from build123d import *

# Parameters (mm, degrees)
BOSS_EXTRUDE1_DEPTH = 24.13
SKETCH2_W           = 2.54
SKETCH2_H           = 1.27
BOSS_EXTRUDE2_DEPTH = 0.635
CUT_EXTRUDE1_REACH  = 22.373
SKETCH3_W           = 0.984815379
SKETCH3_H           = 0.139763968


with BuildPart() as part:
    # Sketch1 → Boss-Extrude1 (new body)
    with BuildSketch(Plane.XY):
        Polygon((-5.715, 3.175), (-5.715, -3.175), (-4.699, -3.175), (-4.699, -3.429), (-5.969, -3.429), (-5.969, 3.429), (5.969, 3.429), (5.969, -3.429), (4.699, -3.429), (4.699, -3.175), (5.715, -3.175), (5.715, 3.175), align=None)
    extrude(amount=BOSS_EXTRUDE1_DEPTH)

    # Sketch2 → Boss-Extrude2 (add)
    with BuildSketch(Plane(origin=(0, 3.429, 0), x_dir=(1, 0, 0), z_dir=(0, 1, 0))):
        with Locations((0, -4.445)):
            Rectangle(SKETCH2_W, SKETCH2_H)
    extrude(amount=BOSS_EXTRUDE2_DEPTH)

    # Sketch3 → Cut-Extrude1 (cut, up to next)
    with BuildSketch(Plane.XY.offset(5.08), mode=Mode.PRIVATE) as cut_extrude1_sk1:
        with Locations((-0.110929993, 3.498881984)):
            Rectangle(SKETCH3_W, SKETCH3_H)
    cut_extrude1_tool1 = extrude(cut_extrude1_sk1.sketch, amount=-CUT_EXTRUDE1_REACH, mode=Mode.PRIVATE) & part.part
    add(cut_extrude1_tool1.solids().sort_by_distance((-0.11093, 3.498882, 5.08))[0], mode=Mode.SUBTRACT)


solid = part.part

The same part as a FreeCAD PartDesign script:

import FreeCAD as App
import Part
import Sketcher
Q = App.Units.Quantity


def add_polygon(sketch, points):
    """Adds a closed chain of lines whose ends are joined by coincident constraints."""
    first, n = sketch.GeometryCount, len(points)
    for a, b in zip(points, points[1:] + points[:1]):
        sketch.addGeometry(Part.LineSegment(App.Vector(*a, 0), App.Vector(*b, 0)), False)
    for i in range(n):
        sketch.addConstraint(Sketcher.Constraint("Coincident", first + i, 2, first + (i + 1) % n, 1))

doc = App.newDocument("Part")
body = doc.addObject("PartDesign::Body", "Body")

sketch1 = doc.addObject("Sketcher::SketchObject", "Sketch")
body.addObject(sketch1)
sketch1.AttachmentSupport = (doc.XY_Plane, [""])
sketch1.MapMode = "FlatFace"
add_polygon(sketch1, [(-5.71, -3.17), (-5.71, 3.17), (5.71, 3.17), (5.71, -3.17), (4.7, -3.17), (4.7, -3.43), (5.97, -3.43), (5.97, 3.43), (-5.97, 3.43), (-5.97, -3.43), (-4.7, -3.43), (-4.7, -3.17)])
sketch1.addConstraint([
    Sketcher.Constraint("Vertical", 0),
    Sketcher.Constraint("Horizontal", 1),
    Sketcher.Constraint("Vertical", 2),
    Sketcher.Constraint("Horizontal", 3),
    Sketcher.Constraint("Vertical", 4),
    Sketcher.Constraint("Horizontal", 5),
    Sketcher.Constraint("Vertical", 6),
    Sketcher.Constraint("Horizontal", 7),
    Sketcher.Constraint("Vertical", 8),
    Sketcher.Constraint("Horizontal", 9),
    Sketcher.Constraint("Vertical", 10),
    Sketcher.Constraint("Horizontal", 11),
    Sketcher.Constraint("Symmetric", 0, 2, 2, 2, -1, 1),
    Sketcher.Constraint("Symmetric", 5, 2, 7, 2, -1, 1),
    Sketcher.Constraint("Symmetric", 4, 2, 9, 2, -2),
    Sketcher.Constraint("Horizontal", 3, 2, 10, 2),
    Sketcher.Constraint("DistanceX", 1, 1, 1, 2, Q("0.45 in")),
    Sketcher.Constraint("DistanceX", 3, 2, 3, 1, Q("0.04 in")),
    Sketcher.Constraint("DistanceX", 5, 1, 5, 2, Q("0.05 in")),
    Sketcher.Constraint("DistanceY", 0, 1, 0, 2, Q("0.25 in")),
    Sketcher.Constraint("DistanceY", 4, 2, 4, 1, Q("0.01 in")),
])
pad1 = doc.addObject("PartDesign::Pad", "Pad")
body.addObject(pad1)
pad1.Profile = sketch1
pad1.Length = Q("0.95 in")

sketch2 = doc.addObject("Sketcher::SketchObject", "Sketch001")
body.addObject(sketch2)
sketch2.AttachmentSupport = (doc.XZ_Plane, [""])
sketch2.MapMode = "FlatFace"
sketch2.AttachmentOffset = App.Placement(App.Vector(0, 0, -0.135 * 25.4), App.Rotation())
add_polygon(sketch2, [(-1.3, 3.8), (-1.3, 5.1), (1.3, 5.1), (1.3, 3.8)])
sketch2.addConstraint([
    Sketcher.Constraint("Vertical", 0),
    Sketcher.Constraint("Horizontal", 1),
    Sketcher.Constraint("Vertical", 2),
    Sketcher.Constraint("Horizontal", 3),
    Sketcher.Constraint("DistanceX", 1, 1, 1, 2, Q("0.1 in")),
    Sketcher.Constraint("DistanceY", 0, 1, 0, 2, Q("0.05 in")),
    Sketcher.Constraint("DistanceY", -1, 1, 0, 2, Q("0.2 in")),
    Sketcher.Constraint("DistanceX", 0, 2, -1, 1, Q("0.05 in")),
])
pad2 = doc.addObject("PartDesign::Pad", "Pad001")
body.addObject(pad2)
pad2.Profile = sketch2
pad2.Length = Q("0.025 in")
pad2.Reversed = True

sketch3 = doc.addObject("Sketcher::SketchObject", "Sketch002")
body.addObject(sketch3)
sketch3.AttachmentSupport = (doc.XY_Plane, [""])
sketch3.MapMode = "FlatFace"
sketch3.AttachmentOffset = App.Placement(App.Vector(0, 0, 0.2 * 25.4), App.Rotation())
add_polygon(sketch3, [(-0.6, 3.57), (-0.6, 3.43), (0.38, 3.43), (0.38, 3.57)])
sketch3.addConstraint([
    Sketcher.Constraint("Vertical", 0),
    Sketcher.Constraint("Horizontal", 1),
    Sketcher.Constraint("Vertical", 2),
    Sketcher.Constraint("Horizontal", 3),
    Sketcher.Constraint("DistanceY", -1, 1, 0, 2, Q("0.135 in")),
    Sketcher.Constraint("DistanceX", 1, 1, 1, 2, Q("0.984815 mm")),
    Sketcher.Constraint("DistanceY", 0, 2, 0, 1, Q("0.139764 mm")),
    Sketcher.Constraint("DistanceX", 0, 2, -1, 1, Q("0.603338 mm")),
])
pocket1 = doc.addObject("PartDesign::Pocket", "Pocket")
body.addObject(pocket1)
pocket1.Profile = sketch3
pocket1.Type = "UpToFirst"

doc.recompute()
